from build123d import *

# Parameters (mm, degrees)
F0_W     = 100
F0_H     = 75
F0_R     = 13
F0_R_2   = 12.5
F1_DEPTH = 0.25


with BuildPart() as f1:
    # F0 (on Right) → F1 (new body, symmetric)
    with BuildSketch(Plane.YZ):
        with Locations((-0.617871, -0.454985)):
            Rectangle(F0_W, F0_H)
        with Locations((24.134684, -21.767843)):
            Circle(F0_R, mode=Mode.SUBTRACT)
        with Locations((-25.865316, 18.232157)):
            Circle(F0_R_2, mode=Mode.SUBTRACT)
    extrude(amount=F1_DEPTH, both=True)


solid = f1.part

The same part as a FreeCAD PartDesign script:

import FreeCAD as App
import Part
import Sketcher

V = App.Vector
Q = App.Units.Quantity

doc = App.newDocument("Part")
body = doc.addObject("PartDesign::Body", "Body")

# Sketch on YZ plane
sketch1 = body.newObject("Sketcher::SketchObject", "Sketch")
sketch1.AttachmentSupport = (doc.getObject("YZ_Plane"), [""])
sketch1.MapMode = "FlatFace"
sketch1.addGeometry(Part.LineSegment(V(-50.617871, 37.045015, 0), V(-50.617871, -37.954985, 0)), False)
sketch1.addGeometry(Part.LineSegment(V(-50.617871, -37.954985, 0), V(49.382129, -37.954985, 0)), False)
sketch1.addGeometry(Part.LineSegment(V(49.382129, -37.954985, 0), V(49.382129, 37.045015, 0)), False)
sketch1.addGeometry(Part.LineSegment(V(49.382129, 37.045015, 0), V(-50.617871, 37.045015, 0)), False)
sketch1.addGeometry(Part.Circle(V(24.134684, -21.767843, 0), V(0, 0, 1), 13), False)
sketch1.addGeometry(Part.Circle(V(-25.865316, 18.232157, 0), V(0, 0, 1), 12.5), False)
sketch1.addConstraint(Sketcher.Constraint("Coincident", 0, 2, 1, 1))
sketch1.addConstraint(Sketcher.Constraint("Coincident", 1, 2, 2, 1))
sketch1.addConstraint(Sketcher.Constraint("Coincident", 2, 2, 3, 1))
sketch1.addConstraint(Sketcher.Constraint("Coincident", 3, 2, 0, 1))
sketch1.addConstraint(Sketcher.Constraint("Vertical", 0))
sketch1.addConstraint(Sketcher.Constraint("Horizontal", 1))
sketch1.addConstraint(Sketcher.Constraint("Vertical", 2))
sketch1.addConstraint(Sketcher.Constraint("Horizontal", 3))
sketch1.addConstraint(Sketcher.Constraint("Diameter", 4, Q("26 mm")))
sketch1.addConstraint(Sketcher.Constraint("Diameter", 5, Q("25 mm")))
sketch1.addConstraint(Sketcher.Constraint("DistanceX", 1, 1, 1, 2, Q("100 mm")))
sketch1.addConstraint(Sketcher.Constraint("DistanceY", 0, 2, 0, 1, Q("75 mm")))
sketch1.addConstraint(Sketcher.Constraint("DistanceX", 5, 3, 4, 3, Q("50 mm")))
sketch1.addConstraint(Sketcher.Constraint("DistanceY", 4, 3, 5, 3, Q("40 mm")))
sketch1.addConstraint(Sketcher.Constraint("DistanceX", 0, 2, -1, 1, Q("50.617871 mm")))
sketch1.addConstraint(Sketcher.Constraint("DistanceX", -1, 1, 4, 3, Q("24.134684 mm")))
sketch1.addConstraint(Sketcher.Constraint("DistanceY", 4, 3, -1, 1, Q("21.767843 mm")))
sketch1.addConstraint(Sketcher.Constraint("DistanceY", 0, 2, -1, 1, Q("37.954985 mm")))
pad1 = body.newObject("PartDesign::Pad", "Pad")
pad1.Profile = sketch1
pad1.Length = 0.5
pad1.Midplane = True

doc.recompute()
